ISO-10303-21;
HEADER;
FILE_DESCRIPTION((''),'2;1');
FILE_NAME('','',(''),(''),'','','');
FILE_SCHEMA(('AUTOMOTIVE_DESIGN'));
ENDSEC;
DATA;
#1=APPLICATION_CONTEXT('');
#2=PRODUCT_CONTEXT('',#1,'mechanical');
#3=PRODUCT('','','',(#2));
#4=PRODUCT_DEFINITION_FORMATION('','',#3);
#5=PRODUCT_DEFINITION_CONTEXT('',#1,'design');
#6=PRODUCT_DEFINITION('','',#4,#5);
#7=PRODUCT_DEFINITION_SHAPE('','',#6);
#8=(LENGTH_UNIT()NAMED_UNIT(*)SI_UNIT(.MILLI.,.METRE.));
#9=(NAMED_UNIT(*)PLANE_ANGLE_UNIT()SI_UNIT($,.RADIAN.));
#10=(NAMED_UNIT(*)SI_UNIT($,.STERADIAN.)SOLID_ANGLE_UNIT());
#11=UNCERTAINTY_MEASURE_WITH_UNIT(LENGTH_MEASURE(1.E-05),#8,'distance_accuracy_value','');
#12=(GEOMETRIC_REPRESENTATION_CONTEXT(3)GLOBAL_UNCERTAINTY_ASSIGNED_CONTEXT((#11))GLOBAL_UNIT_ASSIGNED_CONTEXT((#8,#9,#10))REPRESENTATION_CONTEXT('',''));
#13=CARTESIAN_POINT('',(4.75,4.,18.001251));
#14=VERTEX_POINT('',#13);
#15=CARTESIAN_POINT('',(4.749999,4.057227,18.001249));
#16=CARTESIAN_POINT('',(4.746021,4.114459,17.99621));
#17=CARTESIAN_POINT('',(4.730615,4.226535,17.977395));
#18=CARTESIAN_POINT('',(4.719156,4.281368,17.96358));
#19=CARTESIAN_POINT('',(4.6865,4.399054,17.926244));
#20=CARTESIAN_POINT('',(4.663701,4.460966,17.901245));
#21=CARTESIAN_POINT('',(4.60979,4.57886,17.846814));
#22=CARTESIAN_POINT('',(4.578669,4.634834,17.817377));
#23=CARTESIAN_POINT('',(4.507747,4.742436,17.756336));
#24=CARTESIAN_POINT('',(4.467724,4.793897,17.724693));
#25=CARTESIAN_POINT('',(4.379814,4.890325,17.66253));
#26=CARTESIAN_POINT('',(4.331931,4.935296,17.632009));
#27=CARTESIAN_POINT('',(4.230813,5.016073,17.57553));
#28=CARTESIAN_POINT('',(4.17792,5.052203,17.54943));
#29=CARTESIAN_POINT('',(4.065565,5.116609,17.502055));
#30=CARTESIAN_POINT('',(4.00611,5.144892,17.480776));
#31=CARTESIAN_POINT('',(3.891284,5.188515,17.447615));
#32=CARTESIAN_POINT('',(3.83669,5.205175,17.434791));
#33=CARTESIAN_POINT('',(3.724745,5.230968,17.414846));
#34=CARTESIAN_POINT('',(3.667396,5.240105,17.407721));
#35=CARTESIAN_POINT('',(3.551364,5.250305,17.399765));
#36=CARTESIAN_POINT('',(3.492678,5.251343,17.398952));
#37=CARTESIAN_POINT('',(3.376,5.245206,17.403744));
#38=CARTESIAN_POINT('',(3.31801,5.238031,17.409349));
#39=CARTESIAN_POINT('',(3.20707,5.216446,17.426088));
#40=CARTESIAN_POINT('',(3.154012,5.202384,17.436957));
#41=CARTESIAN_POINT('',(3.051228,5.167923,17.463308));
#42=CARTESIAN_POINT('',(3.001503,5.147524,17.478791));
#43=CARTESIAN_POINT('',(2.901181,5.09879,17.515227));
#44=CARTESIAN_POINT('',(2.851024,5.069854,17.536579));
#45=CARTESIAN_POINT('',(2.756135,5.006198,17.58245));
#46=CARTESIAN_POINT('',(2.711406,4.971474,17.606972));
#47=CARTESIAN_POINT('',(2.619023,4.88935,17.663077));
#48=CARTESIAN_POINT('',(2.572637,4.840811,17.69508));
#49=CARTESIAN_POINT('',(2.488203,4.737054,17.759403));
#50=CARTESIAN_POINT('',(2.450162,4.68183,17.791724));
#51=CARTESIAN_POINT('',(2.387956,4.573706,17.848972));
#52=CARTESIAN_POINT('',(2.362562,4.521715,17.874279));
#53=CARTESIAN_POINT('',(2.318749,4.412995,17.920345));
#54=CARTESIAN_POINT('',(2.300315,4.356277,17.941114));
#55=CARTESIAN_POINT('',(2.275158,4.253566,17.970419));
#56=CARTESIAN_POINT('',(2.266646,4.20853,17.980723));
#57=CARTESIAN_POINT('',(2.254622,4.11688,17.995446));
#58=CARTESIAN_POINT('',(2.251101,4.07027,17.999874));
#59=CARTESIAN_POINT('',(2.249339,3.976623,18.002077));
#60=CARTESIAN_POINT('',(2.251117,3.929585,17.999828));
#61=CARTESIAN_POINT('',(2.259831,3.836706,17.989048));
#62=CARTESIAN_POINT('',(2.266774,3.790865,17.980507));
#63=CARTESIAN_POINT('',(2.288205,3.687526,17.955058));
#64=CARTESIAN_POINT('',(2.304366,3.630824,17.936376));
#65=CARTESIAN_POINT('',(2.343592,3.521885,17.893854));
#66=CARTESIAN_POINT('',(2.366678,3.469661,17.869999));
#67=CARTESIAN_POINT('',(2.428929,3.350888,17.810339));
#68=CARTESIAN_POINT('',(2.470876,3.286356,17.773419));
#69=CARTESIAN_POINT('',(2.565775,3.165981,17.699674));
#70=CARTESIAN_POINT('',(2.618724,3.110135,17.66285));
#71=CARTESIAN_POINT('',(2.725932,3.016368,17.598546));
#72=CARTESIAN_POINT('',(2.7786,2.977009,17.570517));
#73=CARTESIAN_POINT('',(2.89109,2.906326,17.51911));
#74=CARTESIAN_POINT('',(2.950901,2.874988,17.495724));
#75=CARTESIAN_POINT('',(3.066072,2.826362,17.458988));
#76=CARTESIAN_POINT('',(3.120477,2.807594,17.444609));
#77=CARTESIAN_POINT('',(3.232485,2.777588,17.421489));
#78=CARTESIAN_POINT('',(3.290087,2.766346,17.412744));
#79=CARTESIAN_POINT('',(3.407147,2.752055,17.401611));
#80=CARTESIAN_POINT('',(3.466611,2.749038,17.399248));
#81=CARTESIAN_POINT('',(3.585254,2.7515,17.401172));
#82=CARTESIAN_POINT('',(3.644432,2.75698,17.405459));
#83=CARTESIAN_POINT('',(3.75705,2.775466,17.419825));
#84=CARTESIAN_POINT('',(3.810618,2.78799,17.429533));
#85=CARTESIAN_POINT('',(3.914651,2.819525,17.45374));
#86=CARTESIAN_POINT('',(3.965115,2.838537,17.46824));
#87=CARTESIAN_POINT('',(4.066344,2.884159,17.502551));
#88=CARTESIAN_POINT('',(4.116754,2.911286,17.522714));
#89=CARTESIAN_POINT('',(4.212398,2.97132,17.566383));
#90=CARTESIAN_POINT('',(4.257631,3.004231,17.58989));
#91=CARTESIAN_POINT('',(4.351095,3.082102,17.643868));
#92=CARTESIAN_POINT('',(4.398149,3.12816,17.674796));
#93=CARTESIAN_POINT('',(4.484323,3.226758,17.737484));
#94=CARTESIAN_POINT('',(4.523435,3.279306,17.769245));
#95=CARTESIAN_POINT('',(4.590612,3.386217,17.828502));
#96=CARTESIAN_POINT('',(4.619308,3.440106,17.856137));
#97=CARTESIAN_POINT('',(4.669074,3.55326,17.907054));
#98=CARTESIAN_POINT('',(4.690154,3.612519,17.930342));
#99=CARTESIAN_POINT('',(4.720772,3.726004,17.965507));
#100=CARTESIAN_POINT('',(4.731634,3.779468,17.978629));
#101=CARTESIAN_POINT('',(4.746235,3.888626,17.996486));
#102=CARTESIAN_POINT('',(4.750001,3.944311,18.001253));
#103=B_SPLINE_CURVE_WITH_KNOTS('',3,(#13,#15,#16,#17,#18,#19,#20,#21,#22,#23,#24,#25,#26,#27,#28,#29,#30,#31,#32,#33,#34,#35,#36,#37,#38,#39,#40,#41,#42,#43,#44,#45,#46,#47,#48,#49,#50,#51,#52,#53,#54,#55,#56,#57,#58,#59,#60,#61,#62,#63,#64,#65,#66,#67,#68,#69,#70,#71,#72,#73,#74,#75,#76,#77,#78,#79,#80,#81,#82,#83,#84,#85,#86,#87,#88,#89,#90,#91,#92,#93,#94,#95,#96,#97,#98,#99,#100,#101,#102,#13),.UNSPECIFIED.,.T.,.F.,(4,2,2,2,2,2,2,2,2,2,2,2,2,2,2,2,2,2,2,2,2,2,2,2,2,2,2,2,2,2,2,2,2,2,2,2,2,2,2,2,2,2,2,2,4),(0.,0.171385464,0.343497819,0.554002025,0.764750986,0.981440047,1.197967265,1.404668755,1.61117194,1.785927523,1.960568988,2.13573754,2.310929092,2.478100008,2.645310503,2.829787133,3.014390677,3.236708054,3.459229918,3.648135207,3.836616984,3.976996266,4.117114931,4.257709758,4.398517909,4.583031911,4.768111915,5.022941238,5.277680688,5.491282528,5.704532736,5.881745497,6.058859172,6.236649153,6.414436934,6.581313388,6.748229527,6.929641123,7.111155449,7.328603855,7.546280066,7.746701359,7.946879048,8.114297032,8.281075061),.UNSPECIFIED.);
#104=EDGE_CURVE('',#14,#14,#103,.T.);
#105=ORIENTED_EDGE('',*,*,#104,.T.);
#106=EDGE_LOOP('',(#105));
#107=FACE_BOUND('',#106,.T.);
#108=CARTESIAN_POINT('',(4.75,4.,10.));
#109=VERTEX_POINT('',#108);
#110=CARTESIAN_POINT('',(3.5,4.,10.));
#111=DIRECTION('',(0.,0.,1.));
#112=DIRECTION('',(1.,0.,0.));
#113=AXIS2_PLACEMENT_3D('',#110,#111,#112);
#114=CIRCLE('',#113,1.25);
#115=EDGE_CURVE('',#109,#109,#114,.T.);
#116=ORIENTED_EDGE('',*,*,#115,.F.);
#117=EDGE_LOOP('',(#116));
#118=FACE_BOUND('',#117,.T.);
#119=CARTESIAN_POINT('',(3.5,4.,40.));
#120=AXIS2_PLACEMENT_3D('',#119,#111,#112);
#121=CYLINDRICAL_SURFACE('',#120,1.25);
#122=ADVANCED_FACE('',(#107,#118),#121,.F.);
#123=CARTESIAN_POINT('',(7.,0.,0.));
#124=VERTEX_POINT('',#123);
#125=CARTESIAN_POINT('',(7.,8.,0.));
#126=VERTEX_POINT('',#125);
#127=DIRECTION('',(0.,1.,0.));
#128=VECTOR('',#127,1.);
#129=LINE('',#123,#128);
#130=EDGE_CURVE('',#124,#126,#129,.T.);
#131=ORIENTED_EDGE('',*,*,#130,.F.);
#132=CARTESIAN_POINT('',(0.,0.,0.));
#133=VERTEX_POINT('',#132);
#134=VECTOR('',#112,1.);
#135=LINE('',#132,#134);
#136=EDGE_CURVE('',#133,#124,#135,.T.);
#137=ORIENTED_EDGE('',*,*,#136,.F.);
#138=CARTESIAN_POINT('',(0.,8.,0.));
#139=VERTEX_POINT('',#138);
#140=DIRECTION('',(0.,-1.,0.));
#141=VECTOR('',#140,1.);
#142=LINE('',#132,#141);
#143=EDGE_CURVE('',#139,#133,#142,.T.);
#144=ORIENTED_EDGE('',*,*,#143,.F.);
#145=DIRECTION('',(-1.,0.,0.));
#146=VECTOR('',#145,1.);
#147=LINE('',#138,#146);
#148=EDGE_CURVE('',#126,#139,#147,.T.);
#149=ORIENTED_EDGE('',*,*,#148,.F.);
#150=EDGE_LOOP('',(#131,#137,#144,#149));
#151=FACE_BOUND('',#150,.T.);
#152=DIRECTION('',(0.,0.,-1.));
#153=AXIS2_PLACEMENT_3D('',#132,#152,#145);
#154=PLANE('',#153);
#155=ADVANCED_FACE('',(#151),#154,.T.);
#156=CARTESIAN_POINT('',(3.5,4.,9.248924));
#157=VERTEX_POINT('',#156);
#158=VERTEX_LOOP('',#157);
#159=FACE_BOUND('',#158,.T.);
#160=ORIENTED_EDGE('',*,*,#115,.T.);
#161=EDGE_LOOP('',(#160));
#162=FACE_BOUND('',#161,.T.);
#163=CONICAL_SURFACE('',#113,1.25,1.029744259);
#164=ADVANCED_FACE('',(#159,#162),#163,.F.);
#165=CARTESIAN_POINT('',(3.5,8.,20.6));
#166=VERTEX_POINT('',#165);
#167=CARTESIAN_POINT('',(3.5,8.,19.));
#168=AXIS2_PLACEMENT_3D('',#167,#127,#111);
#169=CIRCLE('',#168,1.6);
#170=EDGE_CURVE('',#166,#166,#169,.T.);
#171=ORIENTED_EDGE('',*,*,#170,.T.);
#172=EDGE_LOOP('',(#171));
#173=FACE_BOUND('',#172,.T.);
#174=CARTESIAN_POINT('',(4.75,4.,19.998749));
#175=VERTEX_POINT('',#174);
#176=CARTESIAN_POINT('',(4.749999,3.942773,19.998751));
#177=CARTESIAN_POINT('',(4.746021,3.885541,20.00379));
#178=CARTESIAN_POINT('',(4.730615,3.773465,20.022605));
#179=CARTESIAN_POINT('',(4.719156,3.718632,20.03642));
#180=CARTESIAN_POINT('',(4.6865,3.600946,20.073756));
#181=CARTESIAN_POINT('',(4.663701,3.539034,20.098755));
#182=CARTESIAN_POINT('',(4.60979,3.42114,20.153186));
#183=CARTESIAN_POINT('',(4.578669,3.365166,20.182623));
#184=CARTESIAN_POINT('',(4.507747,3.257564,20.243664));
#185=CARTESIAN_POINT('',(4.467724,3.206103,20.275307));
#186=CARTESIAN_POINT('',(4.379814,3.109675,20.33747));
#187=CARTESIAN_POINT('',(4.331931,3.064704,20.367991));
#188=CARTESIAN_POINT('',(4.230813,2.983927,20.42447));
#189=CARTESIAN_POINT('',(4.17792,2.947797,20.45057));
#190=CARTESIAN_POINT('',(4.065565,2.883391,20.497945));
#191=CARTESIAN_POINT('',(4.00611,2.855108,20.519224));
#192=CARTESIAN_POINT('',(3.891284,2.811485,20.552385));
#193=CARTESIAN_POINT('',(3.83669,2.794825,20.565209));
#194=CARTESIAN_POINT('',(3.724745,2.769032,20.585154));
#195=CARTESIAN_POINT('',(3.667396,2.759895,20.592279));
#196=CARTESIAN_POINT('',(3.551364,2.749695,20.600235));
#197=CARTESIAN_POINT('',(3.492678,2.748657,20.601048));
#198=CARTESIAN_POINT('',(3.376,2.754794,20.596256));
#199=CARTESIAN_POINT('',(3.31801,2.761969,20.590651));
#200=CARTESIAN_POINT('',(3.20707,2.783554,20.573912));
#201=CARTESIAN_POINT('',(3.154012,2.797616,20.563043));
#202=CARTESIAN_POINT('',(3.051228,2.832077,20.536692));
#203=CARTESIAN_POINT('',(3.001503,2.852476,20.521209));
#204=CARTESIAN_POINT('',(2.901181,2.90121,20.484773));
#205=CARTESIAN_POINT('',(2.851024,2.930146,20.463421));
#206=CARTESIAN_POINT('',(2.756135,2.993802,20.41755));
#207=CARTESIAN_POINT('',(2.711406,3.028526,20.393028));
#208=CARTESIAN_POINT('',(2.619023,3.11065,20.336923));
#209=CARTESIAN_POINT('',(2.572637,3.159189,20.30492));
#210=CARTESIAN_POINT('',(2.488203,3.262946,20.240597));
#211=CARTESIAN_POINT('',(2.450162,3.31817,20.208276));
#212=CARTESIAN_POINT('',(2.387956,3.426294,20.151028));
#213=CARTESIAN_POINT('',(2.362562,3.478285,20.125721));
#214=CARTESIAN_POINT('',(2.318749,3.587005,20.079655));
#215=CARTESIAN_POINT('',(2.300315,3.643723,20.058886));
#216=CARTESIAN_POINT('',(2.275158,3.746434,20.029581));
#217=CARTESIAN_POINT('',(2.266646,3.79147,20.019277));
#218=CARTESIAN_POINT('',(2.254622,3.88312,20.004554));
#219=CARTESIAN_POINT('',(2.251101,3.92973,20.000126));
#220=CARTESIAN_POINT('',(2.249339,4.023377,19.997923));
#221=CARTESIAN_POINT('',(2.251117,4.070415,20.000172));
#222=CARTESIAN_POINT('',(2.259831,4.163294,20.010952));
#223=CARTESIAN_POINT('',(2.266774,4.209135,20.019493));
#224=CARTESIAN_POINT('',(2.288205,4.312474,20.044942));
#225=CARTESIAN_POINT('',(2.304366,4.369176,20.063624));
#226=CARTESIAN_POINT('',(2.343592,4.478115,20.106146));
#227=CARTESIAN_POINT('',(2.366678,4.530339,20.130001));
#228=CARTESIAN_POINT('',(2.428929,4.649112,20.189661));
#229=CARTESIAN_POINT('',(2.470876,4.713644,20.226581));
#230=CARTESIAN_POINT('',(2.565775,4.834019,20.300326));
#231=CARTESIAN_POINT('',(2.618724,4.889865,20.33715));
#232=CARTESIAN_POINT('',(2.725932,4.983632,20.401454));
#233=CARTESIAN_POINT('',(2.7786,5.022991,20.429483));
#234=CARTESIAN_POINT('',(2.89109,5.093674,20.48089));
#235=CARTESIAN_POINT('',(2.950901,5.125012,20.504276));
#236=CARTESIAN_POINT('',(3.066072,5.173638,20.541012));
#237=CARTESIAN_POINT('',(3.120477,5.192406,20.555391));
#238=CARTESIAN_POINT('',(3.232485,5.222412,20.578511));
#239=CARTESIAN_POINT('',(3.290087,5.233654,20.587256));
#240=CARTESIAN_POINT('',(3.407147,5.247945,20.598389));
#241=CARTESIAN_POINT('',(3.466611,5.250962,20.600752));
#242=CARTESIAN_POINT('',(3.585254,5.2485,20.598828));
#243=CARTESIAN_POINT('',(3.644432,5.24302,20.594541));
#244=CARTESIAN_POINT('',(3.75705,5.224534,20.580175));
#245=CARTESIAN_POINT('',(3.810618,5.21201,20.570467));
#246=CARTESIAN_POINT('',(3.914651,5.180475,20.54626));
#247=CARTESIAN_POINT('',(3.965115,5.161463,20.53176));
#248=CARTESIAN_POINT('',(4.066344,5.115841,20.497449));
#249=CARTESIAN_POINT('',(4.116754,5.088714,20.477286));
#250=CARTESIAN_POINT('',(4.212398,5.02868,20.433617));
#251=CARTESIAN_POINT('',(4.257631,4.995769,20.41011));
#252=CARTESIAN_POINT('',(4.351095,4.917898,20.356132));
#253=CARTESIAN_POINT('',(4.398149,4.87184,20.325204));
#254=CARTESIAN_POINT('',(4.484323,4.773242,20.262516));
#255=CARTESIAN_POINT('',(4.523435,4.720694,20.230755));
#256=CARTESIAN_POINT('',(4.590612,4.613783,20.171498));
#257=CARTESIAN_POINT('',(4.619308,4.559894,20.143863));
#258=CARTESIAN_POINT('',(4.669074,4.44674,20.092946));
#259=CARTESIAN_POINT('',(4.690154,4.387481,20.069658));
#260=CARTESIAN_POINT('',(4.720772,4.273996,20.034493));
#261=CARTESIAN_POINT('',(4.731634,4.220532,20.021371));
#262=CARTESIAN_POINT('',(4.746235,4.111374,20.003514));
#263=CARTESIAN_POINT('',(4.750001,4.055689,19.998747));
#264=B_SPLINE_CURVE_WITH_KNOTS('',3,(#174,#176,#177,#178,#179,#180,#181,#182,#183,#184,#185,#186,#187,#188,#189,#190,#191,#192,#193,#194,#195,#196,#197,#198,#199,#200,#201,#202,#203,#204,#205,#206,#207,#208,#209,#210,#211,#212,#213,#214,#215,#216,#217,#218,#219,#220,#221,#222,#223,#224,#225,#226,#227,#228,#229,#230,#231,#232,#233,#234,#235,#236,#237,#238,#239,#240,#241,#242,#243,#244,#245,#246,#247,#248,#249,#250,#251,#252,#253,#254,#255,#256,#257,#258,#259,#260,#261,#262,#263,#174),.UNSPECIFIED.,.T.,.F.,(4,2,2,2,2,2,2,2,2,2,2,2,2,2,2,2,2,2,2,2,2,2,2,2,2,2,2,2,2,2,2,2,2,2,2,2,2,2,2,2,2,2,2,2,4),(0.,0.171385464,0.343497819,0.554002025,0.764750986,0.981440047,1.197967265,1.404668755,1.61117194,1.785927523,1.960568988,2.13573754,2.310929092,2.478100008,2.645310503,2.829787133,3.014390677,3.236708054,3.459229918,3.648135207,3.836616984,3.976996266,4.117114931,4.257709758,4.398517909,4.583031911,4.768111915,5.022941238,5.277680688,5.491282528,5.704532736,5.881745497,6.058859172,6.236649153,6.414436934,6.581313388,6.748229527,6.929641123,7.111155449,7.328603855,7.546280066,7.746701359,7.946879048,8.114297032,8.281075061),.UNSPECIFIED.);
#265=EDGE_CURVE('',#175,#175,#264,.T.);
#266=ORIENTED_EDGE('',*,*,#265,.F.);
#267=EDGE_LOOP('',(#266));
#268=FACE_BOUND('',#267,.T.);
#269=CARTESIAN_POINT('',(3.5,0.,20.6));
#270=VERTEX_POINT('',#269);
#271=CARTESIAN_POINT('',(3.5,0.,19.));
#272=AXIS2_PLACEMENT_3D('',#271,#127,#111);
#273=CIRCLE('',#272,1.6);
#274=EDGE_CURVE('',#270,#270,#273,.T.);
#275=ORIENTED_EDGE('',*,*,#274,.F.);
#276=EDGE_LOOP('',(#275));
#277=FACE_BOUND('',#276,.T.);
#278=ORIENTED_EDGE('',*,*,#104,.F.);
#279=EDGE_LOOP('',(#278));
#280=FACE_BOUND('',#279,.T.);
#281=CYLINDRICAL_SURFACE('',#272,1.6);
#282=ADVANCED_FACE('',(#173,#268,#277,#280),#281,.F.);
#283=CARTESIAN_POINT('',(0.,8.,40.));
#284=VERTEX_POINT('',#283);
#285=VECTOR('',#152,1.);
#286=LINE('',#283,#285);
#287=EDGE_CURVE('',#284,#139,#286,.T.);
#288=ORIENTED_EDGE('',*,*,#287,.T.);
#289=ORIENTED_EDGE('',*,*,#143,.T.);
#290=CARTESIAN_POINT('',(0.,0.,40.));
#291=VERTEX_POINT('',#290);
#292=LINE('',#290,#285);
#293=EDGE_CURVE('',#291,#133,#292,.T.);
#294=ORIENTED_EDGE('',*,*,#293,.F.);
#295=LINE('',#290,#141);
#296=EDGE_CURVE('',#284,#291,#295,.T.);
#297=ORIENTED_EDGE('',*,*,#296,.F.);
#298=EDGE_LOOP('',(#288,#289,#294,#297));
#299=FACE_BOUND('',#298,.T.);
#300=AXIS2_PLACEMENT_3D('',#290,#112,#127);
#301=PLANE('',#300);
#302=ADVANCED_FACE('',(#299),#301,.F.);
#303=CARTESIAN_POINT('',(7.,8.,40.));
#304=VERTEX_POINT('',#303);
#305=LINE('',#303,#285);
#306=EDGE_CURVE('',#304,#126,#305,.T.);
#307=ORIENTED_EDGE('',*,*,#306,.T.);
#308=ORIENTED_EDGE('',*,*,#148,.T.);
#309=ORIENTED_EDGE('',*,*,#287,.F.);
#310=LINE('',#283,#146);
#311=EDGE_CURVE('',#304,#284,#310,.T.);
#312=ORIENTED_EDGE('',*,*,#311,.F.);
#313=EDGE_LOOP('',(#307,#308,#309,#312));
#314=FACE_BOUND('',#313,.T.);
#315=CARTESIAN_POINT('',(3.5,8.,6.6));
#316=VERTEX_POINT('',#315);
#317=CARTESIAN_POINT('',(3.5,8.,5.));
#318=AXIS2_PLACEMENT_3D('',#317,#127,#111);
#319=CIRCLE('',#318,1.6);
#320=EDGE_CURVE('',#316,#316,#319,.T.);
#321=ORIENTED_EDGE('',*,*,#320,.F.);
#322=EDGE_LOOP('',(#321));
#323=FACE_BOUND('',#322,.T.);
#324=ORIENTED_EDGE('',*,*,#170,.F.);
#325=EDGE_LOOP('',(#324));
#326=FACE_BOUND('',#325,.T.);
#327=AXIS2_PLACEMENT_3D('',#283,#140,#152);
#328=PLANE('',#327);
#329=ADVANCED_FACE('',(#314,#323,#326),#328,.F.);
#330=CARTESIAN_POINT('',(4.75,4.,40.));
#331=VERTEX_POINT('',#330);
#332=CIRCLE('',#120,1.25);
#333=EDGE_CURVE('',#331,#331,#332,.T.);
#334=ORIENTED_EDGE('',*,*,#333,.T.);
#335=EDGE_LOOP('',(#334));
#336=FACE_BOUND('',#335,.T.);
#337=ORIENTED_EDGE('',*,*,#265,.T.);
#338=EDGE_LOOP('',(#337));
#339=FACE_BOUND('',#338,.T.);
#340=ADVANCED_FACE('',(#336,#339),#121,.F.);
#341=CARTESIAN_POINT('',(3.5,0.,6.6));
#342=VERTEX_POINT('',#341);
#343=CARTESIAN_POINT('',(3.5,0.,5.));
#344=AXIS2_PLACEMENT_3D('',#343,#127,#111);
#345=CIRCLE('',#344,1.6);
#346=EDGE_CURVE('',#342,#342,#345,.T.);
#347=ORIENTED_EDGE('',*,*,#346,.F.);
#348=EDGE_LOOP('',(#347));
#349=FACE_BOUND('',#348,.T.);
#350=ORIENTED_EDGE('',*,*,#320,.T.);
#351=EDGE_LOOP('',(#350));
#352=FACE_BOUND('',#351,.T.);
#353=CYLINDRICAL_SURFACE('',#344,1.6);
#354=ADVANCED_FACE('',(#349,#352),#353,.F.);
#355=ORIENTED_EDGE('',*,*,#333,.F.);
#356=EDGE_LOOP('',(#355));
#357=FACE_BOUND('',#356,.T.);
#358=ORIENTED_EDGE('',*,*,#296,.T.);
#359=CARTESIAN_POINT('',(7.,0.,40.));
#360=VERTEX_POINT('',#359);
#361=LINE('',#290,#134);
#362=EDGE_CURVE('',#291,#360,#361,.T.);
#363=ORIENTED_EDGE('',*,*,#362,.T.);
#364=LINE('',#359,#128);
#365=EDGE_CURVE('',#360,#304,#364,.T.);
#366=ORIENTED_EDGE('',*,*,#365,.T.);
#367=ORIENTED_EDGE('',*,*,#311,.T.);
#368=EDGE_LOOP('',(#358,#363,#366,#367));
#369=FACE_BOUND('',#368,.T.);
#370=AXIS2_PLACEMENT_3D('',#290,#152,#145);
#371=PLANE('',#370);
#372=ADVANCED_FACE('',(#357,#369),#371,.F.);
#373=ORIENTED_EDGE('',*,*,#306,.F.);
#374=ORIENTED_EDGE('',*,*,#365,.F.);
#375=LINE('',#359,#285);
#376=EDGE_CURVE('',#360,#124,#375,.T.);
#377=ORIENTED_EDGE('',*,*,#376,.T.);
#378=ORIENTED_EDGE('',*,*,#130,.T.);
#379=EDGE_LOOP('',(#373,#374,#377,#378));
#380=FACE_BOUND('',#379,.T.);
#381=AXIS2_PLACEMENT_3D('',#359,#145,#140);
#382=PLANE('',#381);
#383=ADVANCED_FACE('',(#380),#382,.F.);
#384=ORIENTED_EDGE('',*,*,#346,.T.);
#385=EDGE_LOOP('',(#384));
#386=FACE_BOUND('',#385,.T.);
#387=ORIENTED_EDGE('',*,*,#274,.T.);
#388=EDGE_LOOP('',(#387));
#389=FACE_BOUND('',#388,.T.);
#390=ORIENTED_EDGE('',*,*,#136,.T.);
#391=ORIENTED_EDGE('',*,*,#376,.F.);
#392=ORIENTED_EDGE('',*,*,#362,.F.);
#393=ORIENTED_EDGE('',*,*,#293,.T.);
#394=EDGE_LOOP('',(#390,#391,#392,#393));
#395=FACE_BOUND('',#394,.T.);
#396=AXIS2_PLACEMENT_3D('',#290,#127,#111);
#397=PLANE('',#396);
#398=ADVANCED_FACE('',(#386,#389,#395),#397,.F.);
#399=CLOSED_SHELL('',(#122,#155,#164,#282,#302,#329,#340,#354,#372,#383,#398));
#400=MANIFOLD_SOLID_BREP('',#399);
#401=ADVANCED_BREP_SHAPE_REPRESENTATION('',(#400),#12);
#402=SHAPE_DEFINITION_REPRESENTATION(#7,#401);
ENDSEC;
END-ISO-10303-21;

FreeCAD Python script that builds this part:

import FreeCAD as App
import Part
import Sketcher

doc = App.newDocument("Part")
body = doc.addObject("PartDesign::Body", "Body")

sketch1 = body.newObject("Sketcher::SketchObject", "Sketch")
sketch1.AttachmentSupport = (doc.getObject("XY_Plane"), [""])
sketch1.MapMode = "FlatFace"
sketch1.addGeometry(Part.LineSegment(App.Vector(0, 8, 0), App.Vector(0, 0, 0)), False)
sketch1.addGeometry(Part.LineSegment(App.Vector(0, 0, 0), App.Vector(7, 0, 0)), False)
sketch1.addGeometry(Part.LineSegment(App.Vector(7, 0, 0), App.Vector(7, 8, 0)), False)
sketch1.addGeometry(Part.LineSegment(App.Vector(7, 8, 0), App.Vector(0, 8, 0)), False)
sketch1.addConstraint(Sketcher.Constraint("Coincident", 0, 2, 1, 1))
sketch1.addConstraint(Sketcher.Constraint("Coincident", 1, 2, 2, 1))
sketch1.addConstraint(Sketcher.Constraint("Coincident", 2, 2, 3, 1))
sketch1.addConstraint(Sketcher.Constraint("Coincident", 3, 2, 0, 1))
sketch1.addConstraint(Sketcher.Constraint("Vertical", 0))
sketch1.addConstraint(Sketcher.Constraint("Horizontal", 1))
sketch1.addConstraint(Sketcher.Constraint("Vertical", 2))
sketch1.addConstraint(Sketcher.Constraint("Horizontal", 3))
sketch1.addConstraint(Sketcher.Constraint("Coincident", 0, 2, -1, 1))
sketch1.addConstraint(Sketcher.Constraint("DistanceX", 1, 1, 1, 2, 7.0))
sketch1.addConstraint(Sketcher.Constraint("DistanceY", 0, 2, 0, 1, 8.0))
pad1 = body.newObject("PartDesign::Pad", "Pad")
pad1.Profile = sketch1
pad1.Length = 40

sketch2 = body.newObject("Sketcher::SketchObject", "Sketch001")
sketch2.AttachmentSupport = (doc.getObject("XY_Plane"), [""])
sketch2.MapMode = "FlatFace"
sketch2.AttachmentOffset = App.Placement(App.Vector(0, 0, 40), App.Rotation())
sketch2.addGeometry(Part.Circle(App.Vector(3.5, 4, 0), App.Vector(0, 0, 1), 1.25), False)
sketch2.addConstraint(Sketcher.Constraint("Diameter", 0, 2.5))
sketch2.addConstraint(Sketcher.Constraint("DistanceY", -1, 1, 0, 3, 4.0))
sketch2.addConstraint(Sketcher.Constraint("DistanceX", -1, 1, 0, 3, 3.5))
doc.recompute()
hole = body.newObject("PartDesign::Hole", "Hole")
hole.Profile = sketch2
hole.ThreadType = "None"
hole.Diameter = 2.5
hole.DepthType = "Dimension"
hole.Depth = 30
hole.DrillPoint = "Angled"
hole.DrillPointAngle = 118

sketch3 = body.newObject("Sketcher::SketchObject", "Sketch002")
sketch3.AttachmentSupport = (doc.getObject("XZ_Plane"), [""])
sketch3.MapMode = "FlatFace"
sketch3.AttachmentOffset = App.Placement(App.Vector(0, 0, -8), App.Rotation())
sketch3.addGeometry(Part.Circle(App.Vector(3.5, 5, 0), App.Vector(0, 0, 1), 1.6), False)
sketch3.addGeometry(Part.Circle(App.Vector(3.5, 19, 0), App.Vector(0, 0, 1), 1.6), False)
sketch3.addConstraint(Sketcher.Constraint("Equal", 0, 1))
sketch3.addConstraint(Sketcher.Constraint("Vertical", 0, 3, 1, 3))
sketch3.addConstraint(Sketcher.Constraint("Diameter", 0, 3.2))
sketch3.addConstraint(Sketcher.Constraint("DistanceY", -1, 1, 0, 3, 5.0))
sketch3.addConstraint(Sketcher.Constraint("DistanceY", -1, 1, 1, 3, 19.0))
sketch3.addConstraint(Sketcher.Constraint("DistanceX", -1, 1, 0, 3, 3.5))
pocket1 = body.newObject("PartDesign::Pocket", "Pocket")
pocket1.Profile = sketch3
pocket1.Type = "ThroughAll"
pocket1.Reversed = True

doc.recompute()
